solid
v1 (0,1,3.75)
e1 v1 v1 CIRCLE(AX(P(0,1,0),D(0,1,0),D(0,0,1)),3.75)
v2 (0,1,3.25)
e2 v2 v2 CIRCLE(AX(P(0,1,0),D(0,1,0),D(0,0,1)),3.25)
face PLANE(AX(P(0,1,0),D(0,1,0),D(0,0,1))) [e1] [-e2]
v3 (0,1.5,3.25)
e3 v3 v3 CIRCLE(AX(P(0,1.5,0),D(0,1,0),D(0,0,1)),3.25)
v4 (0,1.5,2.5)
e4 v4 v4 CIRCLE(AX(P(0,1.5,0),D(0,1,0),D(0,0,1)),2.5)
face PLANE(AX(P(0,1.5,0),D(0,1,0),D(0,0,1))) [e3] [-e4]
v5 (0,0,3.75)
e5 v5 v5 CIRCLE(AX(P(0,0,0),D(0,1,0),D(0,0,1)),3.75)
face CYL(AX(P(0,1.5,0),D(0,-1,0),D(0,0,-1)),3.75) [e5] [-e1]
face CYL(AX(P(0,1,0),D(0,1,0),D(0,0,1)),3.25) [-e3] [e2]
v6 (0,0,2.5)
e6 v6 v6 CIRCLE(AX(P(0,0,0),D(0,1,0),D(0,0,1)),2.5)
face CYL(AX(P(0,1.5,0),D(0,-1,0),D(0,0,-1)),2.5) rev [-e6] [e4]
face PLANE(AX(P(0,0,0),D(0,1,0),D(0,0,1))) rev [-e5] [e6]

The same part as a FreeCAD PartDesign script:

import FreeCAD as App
import Part
import Sketcher

V = App.Vector
Q = App.Units.Quantity

doc = App.newDocument("Part")
body = doc.addObject("PartDesign::Body", "Body")

# Sketch on XZ plane
sketch1 = body.newObject("Sketcher::SketchObject", "Sketch")
sketch1.AttachmentSupport = (doc.getObject("XZ_Plane"), [""])
sketch1.MapMode = "FlatFace"
sketch1.addGeometry([
    Part.Circle(V(0, 0, 0), V(0, 0, 1), 3.8),
    Part.Circle(V(0, 0, 0), V(0, 0, 1), 2.5),
], False)
sketch1.addConstraint([
    Sketcher.Constraint("Coincident", 0, 3, -1, 1),
    Sketcher.Constraint("Coincident", 1, 3, -1, 1),
    Sketcher.Constraint("Diameter", 1, Q("5 mm")),
    Sketcher.Constraint("Diameter", 0, Q("7.5 mm")),
])
pad1 = body.newObject("PartDesign::Pad", "Pad")
pad1.Profile = sketch1
pad1.Length = 1.5
pad1.Reversed = True

# Sketch on XZ plane
sketch2 = body.newObject("Sketcher::SketchObject", "Sketch001")
sketch2.AttachmentSupport = (doc.getObject("XZ_Plane"), [""])
sketch2.MapMode = "FlatFace"
sketch2.AttachmentOffset = App.Placement(V(0, 0, -1.5), App.Rotation())
sketch2.addGeometry([
    Part.Circle(V(0, 0, 0), V(0, 0, 1), 3.8),
    Part.Circle(V(0, 0, 0), V(0, 0, 1), 3.2),
], False)
sketch2.addConstraint([
    Sketcher.Constraint("Coincident", 0, 3, -1, 1),
    Sketcher.Constraint("Coincident", 1, 3, -1, 1),
    Sketcher.Constraint("Diameter", 0, Q("7.5 mm")),
    Sketcher.Constraint("Diameter", 1, Q("6.5 mm")),
])
pocket1 = body.newObject("PartDesign::Pocket", "Pocket")
pocket1.Profile = sketch2
pocket1.Length = 0.5
pocket1.Reversed = True

doc.recompute()
